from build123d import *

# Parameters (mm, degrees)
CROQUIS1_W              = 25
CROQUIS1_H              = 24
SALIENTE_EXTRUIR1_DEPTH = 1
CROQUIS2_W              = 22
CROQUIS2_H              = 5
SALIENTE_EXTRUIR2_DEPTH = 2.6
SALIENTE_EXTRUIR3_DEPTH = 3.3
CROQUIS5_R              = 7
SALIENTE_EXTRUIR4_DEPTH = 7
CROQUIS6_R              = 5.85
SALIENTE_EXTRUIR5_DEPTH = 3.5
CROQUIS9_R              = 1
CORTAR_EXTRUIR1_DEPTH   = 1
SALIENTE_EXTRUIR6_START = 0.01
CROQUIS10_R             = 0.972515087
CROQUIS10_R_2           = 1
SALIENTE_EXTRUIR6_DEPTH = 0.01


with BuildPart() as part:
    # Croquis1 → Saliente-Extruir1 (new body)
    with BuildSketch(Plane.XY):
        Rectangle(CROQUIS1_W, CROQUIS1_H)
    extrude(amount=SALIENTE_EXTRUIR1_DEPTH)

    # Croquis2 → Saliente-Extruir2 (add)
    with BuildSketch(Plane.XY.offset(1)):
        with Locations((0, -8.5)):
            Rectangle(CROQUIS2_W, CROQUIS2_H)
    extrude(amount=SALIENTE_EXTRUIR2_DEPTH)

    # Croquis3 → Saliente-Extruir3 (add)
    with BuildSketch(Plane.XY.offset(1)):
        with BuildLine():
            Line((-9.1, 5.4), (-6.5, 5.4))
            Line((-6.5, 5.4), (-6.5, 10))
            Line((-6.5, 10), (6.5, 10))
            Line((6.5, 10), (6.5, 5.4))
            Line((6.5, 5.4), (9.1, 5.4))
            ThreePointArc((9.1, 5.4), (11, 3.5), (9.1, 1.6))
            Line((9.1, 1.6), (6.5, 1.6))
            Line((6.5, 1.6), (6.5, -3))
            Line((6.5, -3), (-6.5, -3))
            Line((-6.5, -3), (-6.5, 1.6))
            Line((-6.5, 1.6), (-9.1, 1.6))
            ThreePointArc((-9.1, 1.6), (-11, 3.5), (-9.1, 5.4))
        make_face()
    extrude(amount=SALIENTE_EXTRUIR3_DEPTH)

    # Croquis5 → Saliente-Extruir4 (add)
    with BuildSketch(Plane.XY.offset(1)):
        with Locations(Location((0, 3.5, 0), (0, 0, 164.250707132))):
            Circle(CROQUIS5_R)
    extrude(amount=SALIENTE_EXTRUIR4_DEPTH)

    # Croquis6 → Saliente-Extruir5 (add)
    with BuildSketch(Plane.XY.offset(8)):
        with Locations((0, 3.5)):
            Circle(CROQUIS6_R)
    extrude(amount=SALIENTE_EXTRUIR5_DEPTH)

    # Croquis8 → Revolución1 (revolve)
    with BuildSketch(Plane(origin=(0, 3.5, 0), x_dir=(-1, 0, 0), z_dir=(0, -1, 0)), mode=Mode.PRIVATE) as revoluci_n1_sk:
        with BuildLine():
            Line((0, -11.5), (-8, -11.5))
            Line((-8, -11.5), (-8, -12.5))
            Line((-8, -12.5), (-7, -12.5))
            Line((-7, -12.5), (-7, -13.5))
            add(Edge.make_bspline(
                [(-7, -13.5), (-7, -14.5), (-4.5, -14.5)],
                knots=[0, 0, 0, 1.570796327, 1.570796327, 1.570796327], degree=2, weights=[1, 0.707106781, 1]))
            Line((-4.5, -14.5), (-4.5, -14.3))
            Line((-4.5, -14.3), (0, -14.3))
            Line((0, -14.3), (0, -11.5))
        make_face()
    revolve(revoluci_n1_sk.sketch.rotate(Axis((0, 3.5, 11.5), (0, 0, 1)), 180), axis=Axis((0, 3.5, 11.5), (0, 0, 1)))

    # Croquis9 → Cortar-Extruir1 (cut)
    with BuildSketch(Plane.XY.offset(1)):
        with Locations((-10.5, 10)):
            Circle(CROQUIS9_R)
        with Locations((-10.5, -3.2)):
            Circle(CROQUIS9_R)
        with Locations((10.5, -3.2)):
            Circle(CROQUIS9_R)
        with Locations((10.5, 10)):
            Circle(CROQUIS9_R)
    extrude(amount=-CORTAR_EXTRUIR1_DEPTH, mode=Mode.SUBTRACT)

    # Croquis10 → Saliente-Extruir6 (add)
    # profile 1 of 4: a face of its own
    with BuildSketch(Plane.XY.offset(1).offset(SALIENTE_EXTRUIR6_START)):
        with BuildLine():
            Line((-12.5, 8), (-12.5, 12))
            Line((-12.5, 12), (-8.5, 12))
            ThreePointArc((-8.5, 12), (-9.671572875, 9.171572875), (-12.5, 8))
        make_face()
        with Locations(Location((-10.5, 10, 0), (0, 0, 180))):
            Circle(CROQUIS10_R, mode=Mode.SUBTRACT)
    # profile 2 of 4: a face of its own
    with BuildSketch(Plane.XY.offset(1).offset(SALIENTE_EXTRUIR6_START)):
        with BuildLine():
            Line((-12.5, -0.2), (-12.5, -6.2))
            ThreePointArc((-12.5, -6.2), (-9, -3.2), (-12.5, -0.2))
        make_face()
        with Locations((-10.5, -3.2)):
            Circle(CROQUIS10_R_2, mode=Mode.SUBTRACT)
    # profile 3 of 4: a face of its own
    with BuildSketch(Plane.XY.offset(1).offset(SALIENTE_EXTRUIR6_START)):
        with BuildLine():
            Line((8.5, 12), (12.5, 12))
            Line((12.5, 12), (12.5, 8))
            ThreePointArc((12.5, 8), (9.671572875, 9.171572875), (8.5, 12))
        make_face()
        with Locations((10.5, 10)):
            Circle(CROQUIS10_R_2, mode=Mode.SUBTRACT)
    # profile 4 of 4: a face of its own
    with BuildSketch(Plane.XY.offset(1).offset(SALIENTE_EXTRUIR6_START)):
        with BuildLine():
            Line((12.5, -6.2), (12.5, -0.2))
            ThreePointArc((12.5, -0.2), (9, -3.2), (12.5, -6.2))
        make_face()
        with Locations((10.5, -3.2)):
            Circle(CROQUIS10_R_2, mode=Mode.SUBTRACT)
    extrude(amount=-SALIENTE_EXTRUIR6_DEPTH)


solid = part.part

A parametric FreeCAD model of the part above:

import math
import FreeCAD as App
import Part
import Sketcher
Q = App.Units.Quantity

doc = App.newDocument("Part")
params = doc.addObject("Spreadsheet::Sheet", "Params")
for row, (alias, value) in enumerate([
    ("sketch1_width", "25 mm"),
    ("sketch1_height", "24 mm"),
    ("pad1_length", "1 mm"),
    ("sketch2_width", "22 mm"),
    ("sketch2_height", "5 mm"),
    ("pad2_length", "2.6 mm"),
    ("sketch3_radius", "1.9 mm"),
    ("sketch3_width", "13 mm"),
    ("sketch3_width2", "2.6 mm"),
    ("sketch3_height", "4.6 mm"),
    ("pad3_length", "3.3 mm"),
    ("sketch4_diameter", "14 mm"),
    ("pad4_length", "7 mm"),
    ("sketch5_diameter", "11.7 mm"),
    ("pad5_length", "3.5 mm"),
    ("sketch6_width", "8 mm"),
    ("sketch6_height", "1 mm"),
    ("sketch6_height2", "1 mm"),
    ("sketch6_height3", "0.2 mm"),
    ("revolution_angle", "360 deg"),
    ("sketch7_diameter", "2 mm"),
    ("pocket1_length", "1 mm"),
    ("sketch8_diameter", "2 mm"),
    ("sketch8_radius", "4 mm"),
    ("sketch8_height", "6 mm"),
    ("pad6_length", "0.01 mm"),
], start=1):
    params.set(f"A{row}", alias)
    params.set(f"B{row}", "=" + value)
    params.setAlias(f"B{row}", alias)

body = doc.addObject("PartDesign::Body", "Body")

sketch1 = doc.addObject("Sketcher::SketchObject", "Sketch")
body.addObject(sketch1)
sketch1.AttachmentSupport = (doc.XY_Plane, [""])
sketch1.MapMode = "FlatFace"
sketch1.addGeometry(Part.LineSegment(App.Vector(-12, 12, 0), App.Vector(-12, -12, 0)), False)
sketch1.addGeometry(Part.LineSegment(App.Vector(-12, -12, 0), App.Vector(12, -12, 0)), False)
sketch1.addGeometry(Part.LineSegment(App.Vector(12, -12, 0), App.Vector(12, 12, 0)), False)
sketch1.addGeometry(Part.LineSegment(App.Vector(12, 12, 0), App.Vector(-12, 12, 0)), False)
sketch1.addConstraint(Sketcher.Constraint("Coincident", 0, 2, 1, 1))
sketch1.addConstraint(Sketcher.Constraint("Coincident", 1, 2, 2, 1))
sketch1.addConstraint(Sketcher.Constraint("Coincident", 2, 2, 3, 1))
sketch1.addConstraint(Sketcher.Constraint("Coincident", 3, 2, 0, 1))
sketch1.addConstraint(Sketcher.Constraint("Vertical", 0))
sketch1.addConstraint(Sketcher.Constraint("Horizontal", 1))
sketch1.addConstraint(Sketcher.Constraint("Vertical", 2))
sketch1.addConstraint(Sketcher.Constraint("Horizontal", 3))
sketch1.addConstraint(Sketcher.Constraint("Symmetric", 0, 2, 2, 2, -1, 1))
sketch1.addConstraint(Sketcher.Constraint("DistanceX", 1, 1, 1, 2, Q("25 mm")))
sketch1.addConstraint(Sketcher.Constraint("DistanceY", 0, 2, 0, 1, Q("24 mm")))
sketch1.setExpression("Constraints[9]", "Params.sketch1_width")
sketch1.setExpression("Constraints[10]", "Params.sketch1_height")
pad1 = doc.addObject("PartDesign::Pad", "Pad")
body.addObject(pad1)
pad1.Profile = sketch1
pad1.setExpression("Length", "Params.pad1_length")

sketch2 = doc.addObject("Sketcher::SketchObject", "Sketch001")
body.addObject(sketch2)
sketch2.AttachmentSupport = (doc.XY_Plane, [""])
sketch2.MapMode = "FlatFace"
sketch2.AttachmentOffset = App.Placement(App.Vector(0, 0, 1), App.Rotation())
sketch2.addGeometry(Part.LineSegment(App.Vector(-11, -6, 0), App.Vector(-11, -11, 0)), False)
sketch2.addGeometry(Part.LineSegment(App.Vector(-11, -11, 0), App.Vector(11, -11, 0)), False)
sketch2.addGeometry(Part.LineSegment(App.Vector(11, -11, 0), App.Vector(11, -6, 0)), False)
sketch2.addGeometry(Part.LineSegment(App.Vector(11, -6, 0), App.Vector(-11, -6, 0)), False)
sketch2.addConstraint(Sketcher.Constraint("Coincident", 0, 2, 1, 1))
sketch2.addConstraint(Sketcher.Constraint("Coincident", 1, 2, 2, 1))
sketch2.addConstraint(Sketcher.Constraint("Coincident", 2, 2, 3, 1))
sketch2.addConstraint(Sketcher.Constraint("Coincident", 3, 2, 0, 1))
sketch2.addConstraint(Sketcher.Constraint("Vertical", 0))
sketch2.addConstraint(Sketcher.Constraint("Horizontal", 1))
sketch2.addConstraint(Sketcher.Constraint("Vertical", 2))
sketch2.addConstraint(Sketcher.Constraint("Horizontal", 3))
sketch2.addConstraint(Sketcher.Constraint("DistanceX", 1, 1, 1, 2, Q("22 mm")))
sketch2.addConstraint(Sketcher.Constraint("DistanceY", 0, 2, 0, 1, Q("5 mm")))
sketch2.addConstraint(Sketcher.Constraint("DistanceX", 0, 2, -1, 1, Q("11 mm")))
sketch2.addConstraint(Sketcher.Constraint("DistanceY", 0, 2, -1, 1, Q("11 mm")))
sketch2.setExpression("Constraints[8]", "Params.sketch2_width")
sketch2.setExpression("Constraints[9]", "Params.sketch2_height")
pad2 = doc.addObject("PartDesign::Pad", "Pad001")
body.addObject(pad2)
pad2.Profile = sketch2
pad2.setExpression("Length", "Params.pad2_length")

sketch3 = doc.addObject("Sketcher::SketchObject", "Sketch002")
body.addObject(sketch3)
sketch3.AttachmentSupport = (doc.XY_Plane, [""])
sketch3.MapMode = "FlatFace"
sketch3.AttachmentOffset = App.Placement(App.Vector(0, 0, 1), App.Rotation())
sketch3.addGeometry(Part.LineSegment(App.Vector(-6.5, 5.4, 0), App.Vector(-9.1, 5.4, 0)), False)
sketch3.addGeometry(Part.ArcOfCircle(Part.Circle(App.Vector(-9.1, 3.5, 0), App.Vector(0, 0, 1), 1.9), math.radians(90), math.radians(270)), False)
sketch3.addGeometry(Part.LineSegment(App.Vector(-9.1, 1.6, 0), App.Vector(-6.5, 1.6, 0)), False)
sketch3.addGeometry(Part.LineSegment(App.Vector(-6.5, 1.6, 0), App.Vector(-6.5, -3, 0)), False)
sketch3.addGeometry(Part.LineSegment(App.Vector(-6.5, -3, 0), App.Vector(6.5, -3, 0)), False)
sketch3.addGeometry(Part.LineSegment(App.Vector(6.5, -3, 0), App.Vector(6.5, 1.6, 0)), False)
sketch3.addGeometry(Part.LineSegment(App.Vector(6.5, 1.6, 0), App.Vector(9.1, 1.6, 0)), False)
sketch3.addGeometry(Part.ArcOfCircle(Part.Circle(App.Vector(9.1, 3.5, 0), App.Vector(0, 0, 1), 1.9), math.radians(-90), math.radians(90)), False)
sketch3.addGeometry(Part.LineSegment(App.Vector(9.1, 5.4, 0), App.Vector(6.5, 5.4, 0)), False)
sketch3.addGeometry(Part.LineSegment(App.Vector(6.5, 5.4, 0), App.Vector(6.5, 10, 0)), False)
sketch3.addGeometry(Part.LineSegment(App.Vector(6.5, 10, 0), App.Vector(-6.5, 10, 0)), False)
sketch3.addGeometry(Part.LineSegment(App.Vector(-6.5, 10, 0), App.Vector(-6.5, 5.4, 0)), False)
sketch3.addConstraint(Sketcher.Constraint("Tangent", 0, 2, 1, 1))
sketch3.addConstraint(Sketcher.Constraint("Tangent", 1, 2, 2, 1))
sketch3.addConstraint(Sketcher.Constraint("Coincident", 2, 2, 3, 1))
sketch3.addConstraint(Sketcher.Constraint("Coincident", 3, 2, 4, 1))
sketch3.addConstraint(Sketcher.Constraint("Coincident", 4, 2, 5, 1))
sketch3.addConstraint(Sketcher.Constraint("Coincident", 5, 2, 6, 1))
sketch3.addConstraint(Sketcher.Constraint("Tangent", 6, 2, 7, 1))
sketch3.addConstraint(Sketcher.Constraint("Tangent", 7, 2, 8, 1))
sketch3.addConstraint(Sketcher.Constraint("Coincident", 8, 2, 9, 1))
sketch3.addConstraint(Sketcher.Constraint("Coincident", 9, 2, 10, 1))
sketch3.addConstraint(Sketcher.Constraint("Coincident", 10, 2, 11, 1))
sketch3.addConstraint(Sketcher.Constraint("Coincident", 11, 2, 0, 1))
sketch3.addConstraint(Sketcher.Constraint("Horizontal", 0))
sketch3.addConstraint(Sketcher.Constraint("Horizontal", 2))
sketch3.addConstraint(Sketcher.Constraint("Vertical", 3))
sketch3.addConstraint(Sketcher.Constraint("Horizontal", 4))
sketch3.addConstraint(Sketcher.Constraint("Vertical", 5))
sketch3.addConstraint(Sketcher.Constraint("Horizontal", 6))
sketch3.addConstraint(Sketcher.Constraint("Horizontal", 8))
sketch3.addConstraint(Sketcher.Constraint("Vertical", 9))
sketch3.addConstraint(Sketcher.Constraint("Horizontal", 10))
sketch3.addConstraint(Sketcher.Constraint("Vertical", 11))
sketch3.addConstraint(Sketcher.Constraint("Equal", 1, 7))
sketch3.addConstraint(Sketcher.Constraint("Symmetric", 1, 3, 7, 3, -2))
sketch3.addConstraint(Sketcher.Constraint("Vertical", 5, 2, 8, 2))
sketch3.addConstraint(Sketcher.Constraint("Vertical", 3, 2, 10, 2))
sketch3.addConstraint(Sketcher.Constraint("Equal", 2, 6))
sketch3.addConstraint(Sketcher.Constraint("Equal", 5, 9))
sketch3.addConstraint(Sketcher.Constraint("Radius", 1, Q("1.9 mm")))
sketch3.addConstraint(Sketcher.Constraint("DistanceX", 4, 1, 4, 2, Q("13 mm")))
sketch3.addConstraint(Sketcher.Constraint("DistanceX", 0, 2, 0, 1, Q("2.6 mm")))
sketch3.addConstraint(Sketcher.Constraint("DistanceY", 3, 2, 3, 1, Q("4.6 mm")))
sketch3.addConstraint(Sketcher.Constraint("DistanceY", 3, 2, -1, 1, Q("3 mm")))
sketch3.setExpression("Constraints[28]", "Params.sketch3_radius")
sketch3.setExpression("Constraints[29]", "Params.sketch3_width")
sketch3.setExpression("Constraints[30]", "Params.sketch3_width2")
sketch3.setExpression("Constraints[31]", "Params.sketch3_height")
pad3 = doc.addObject("PartDesign::Pad", "Pad002")
body.addObject(pad3)
pad3.Profile = sketch3
pad3.setExpression("Length", "Params.pad3_length")

sketch4 = doc.addObject("Sketcher::SketchObject", "Sketch003")
body.addObject(sketch4)
sketch4.AttachmentSupport = (doc.XY_Plane, [""])
sketch4.MapMode = "FlatFace"
sketch4.AttachmentOffset = App.Placement(App.Vector(0, 0, 1), App.Rotation())
sketch4.addGeometry(Part.Circle(App.Vector(0, 4, 0), App.Vector(0, 0, 1), 7), False)
sketch4.addConstraint(Sketcher.Constraint("PointOnObject", 0, 3, -2))
sketch4.addConstraint(Sketcher.Constraint("Diameter", 0, Q("14 mm")))
sketch4.addConstraint(Sketcher.Constraint("DistanceY", -1, 1, 0, 3, Q("3.5 mm")))
sketch4.setExpression("Constraints[1]", "Params.sketch4_diameter")
pad4 = doc.addObject("PartDesign::Pad", "Pad003")
body.addObject(pad4)
pad4.Profile = sketch4
pad4.setExpression("Length", "Params.pad4_length")

sketch5 = doc.addObject("Sketcher::SketchObject", "Sketch004")
body.addObject(sketch5)
sketch5.AttachmentSupport = (doc.XY_Plane, [""])
sketch5.MapMode = "FlatFace"
sketch5.AttachmentOffset = App.Placement(App.Vector(0, 0, 8), App.Rotation())
sketch5.addGeometry(Part.Circle(App.Vector(0, 4, 0), App.Vector(0, 0, 1), 6), False)
sketch5.addConstraint(Sketcher.Constraint("PointOnObject", 0, 3, -2))
sketch5.addConstraint(Sketcher.Constraint("Diameter", 0, Q("11.7 mm")))
sketch5.addConstraint(Sketcher.Constraint("DistanceY", -1, 1, 0, 3, Q("3.5 mm")))
sketch5.setExpression("Constraints[1]", "Params.sketch5_diameter")
pad5 = doc.addObject("PartDesign::Pad", "Pad004")
body.addObject(pad5)
pad5.Profile = sketch5
pad5.setExpression("Length", "Params.pad5_length")

sketch6 = doc.addObject("Sketcher::SketchObject", "Sketch005")
body.addObject(sketch6)
sketch6.AttachmentSupport = (doc.XZ_Plane, [""])
sketch6.MapMode = "FlatFace"
sketch6.AttachmentOffset = App.Placement(App.Vector(0, 0, -3.5), App.Rotation())
sketch6.addGeometry(Part.LineSegment(App.Vector(0, 11.5, 0), App.Vector(8, 11.5, 0)), False)
sketch6.addGeometry(Part.LineSegment(App.Vector(8, 11.5, 0), App.Vector(8, 12.5, 0)), False)
sketch6.addGeometry(Part.LineSegment(App.Vector(8, 12.5, 0), App.Vector(7, 12.5, 0)), False)
sketch6.addGeometry(Part.LineSegment(App.Vector(7, 12.5, 0), App.Vector(7, 13.5, 0)), False)
sketch6.addGeometry(Part.BSplineCurve([App.Vector(7, 13.5, 0), App.Vector(7, 14.5, 0), App.Vector(4.5, 14.5, 0)], [3, 3], [0, 1.570796327], False, 2, [1, 0.707106781, 1], False), False)
sketch6.addGeometry(Part.LineSegment(App.Vector(4.5, 14.5, 0), App.Vector(4.5, 14.3, 0)), False)
sketch6.addGeometry(Part.LineSegment(App.Vector(4.5, 14.3, 0), App.Vector(0, 14.3, 0)), False)
sketch6.addGeometry(Part.LineSegment(App.Vector(0, 14.3, 0), App.Vector(0, 11.5, 0)), False)
sketch6.addConstraint(Sketcher.Constraint("Block", 4))
sketch6.addConstraint(Sketcher.Constraint("Coincident", 0, 2, 1, 1))
sketch6.addConstraint(Sketcher.Constraint("Coincident", 1, 2, 2, 1))
sketch6.addConstraint(Sketcher.Constraint("Coincident", 2, 2, 3, 1))
sketch6.addConstraint(Sketcher.Constraint("Coincident", 3, 2, 4, 1))
sketch6.addConstraint(Sketcher.Constraint("Coincident", 4, 2, 5, 1))
sketch6.addConstraint(Sketcher.Constraint("Coincident", 5, 2, 6, 1))
sketch6.addConstraint(Sketcher.Constraint("Coincident", 6, 2, 7, 1))
sketch6.addConstraint(Sketcher.Constraint("Coincident", 7, 2, 0, 1))
sketch6.addConstraint(Sketcher.Constraint("Horizontal", 0))
sketch6.addConstraint(Sketcher.Constraint("Vertical", 1))
sketch6.addConstraint(Sketcher.Constraint("Horizontal", 2))
sketch6.addConstraint(Sketcher.Constraint("Vertical", 3))
sketch6.addConstraint(Sketcher.Constraint("Vertical", 5))
sketch6.addConstraint(Sketcher.Constraint("Horizontal", 6))
sketch6.addConstraint(Sketcher.Constraint("Vertical", 7))
sketch6.addConstraint(Sketcher.Constraint("PointOnObject", 6, 2, -2))
sketch6.addConstraint(Sketcher.Constraint("DistanceX", 0, 1, 0, 2, Q("8 mm")))
sketch6.addConstraint(Sketcher.Constraint("DistanceY", 1, 1, 1, 2, Q("1 mm")))
sketch6.addConstraint(Sketcher.Constraint("DistanceY", 3, 1, 3, 2, Q("1 mm")))
sketch6.addConstraint(Sketcher.Constraint("DistanceY", 5, 2, 5, 1, Q("0.2 mm")))
sketch6.setExpression("Constraints[17]", "Params.sketch6_width")
sketch6.setExpression("Constraints[18]", "Params.sketch6_height")
sketch6.setExpression("Constraints[19]", "Params.sketch6_height2")
sketch6.setExpression("Constraints[20]", "Params.sketch6_height3")
revolution = doc.addObject("PartDesign::Revolution", "Revolution")
body.addObject(revolution)
revolution.Profile = sketch6
revolution.ReferenceAxis = (sketch6, ["V_Axis"])
revolution.setExpression("Angle", "Params.revolution_angle")

sketch7 = doc.addObject("Sketcher::SketchObject", "Sketch006")
body.addObject(sketch7)
sketch7.AttachmentSupport = (doc.XY_Plane, [""])
sketch7.MapMode = "FlatFace"
sketch7.AttachmentOffset = App.Placement(App.Vector(0, 0, 1), App.Rotation())
sketch7.addGeometry(Part.Circle(App.Vector(-10.5, 10, 0), App.Vector(0, 0, 1), 1), False)
sketch7.addGeometry(Part.Circle(App.Vector(-10.5, -3.2, 0), App.Vector(0, 0, 1), 1), False)
sketch7.addGeometry(Part.Circle(App.Vector(10.5, -3.2, 0), App.Vector(0, 0, 1), 1), False)
sketch7.addGeometry(Part.Circle(App.Vector(10.5, 10, 0), App.Vector(0, 0, 1), 1), False)
sketch7.addConstraint(Sketcher.Constraint("Equal", 0, 1))
sketch7.addConstraint(Sketcher.Constraint("Equal", 1, 2))
sketch7.addConstraint(Sketcher.Constraint("Equal", 2, 3))
sketch7.addConstraint(Sketcher.Constraint("Symmetric", 1, 3, 2, 3, -2))
sketch7.addConstraint(Sketcher.Constraint("Symmetric", 0, 3, 3, 3, -2))
sketch7.addConstraint(Sketcher.Constraint("Vertical", 0, 3, 1, 3))
sketch7.addConstraint(Sketcher.Constraint("Diameter", 0, Q("2 mm")))
sketch7.addConstraint(Sketcher.Constraint("DistanceY", -1, 1, 0, 3, Q("10 mm")))
sketch7.addConstraint(Sketcher.Constraint("DistanceX", 1, 3, 2, 3, Q("21 mm")))
sketch7.addConstraint(Sketcher.Constraint("DistanceY", 1, 3, -1, 1, Q("3.2 mm")))
sketch7.setExpression("Constraints[6]", "Params.sketch7_diameter")
pocket1 = doc.addObject("PartDesign::Pocket", "Pocket")
body.addObject(pocket1)
pocket1.Profile = sketch7
pocket1.setExpression("Length", "Params.pocket1_length")

sketch8 = doc.addObject("Sketcher::SketchObject", "Sketch007")
body.addObject(sketch8)
sketch8.AttachmentSupport = (doc.XY_Plane, [""])
sketch8.MapMode = "FlatFace"
sketch8.AttachmentOffset = App.Placement(App.Vector(0, 0, 1.01), App.Rotation())
sketch8.addGeometry(Part.LineSegment(App.Vector(-12.5, 12, 0), App.Vector(-12.5, 8, 0)), False)
sketch8.addGeometry(Part.ArcOfCircle(Part.Circle(App.Vector(-12.5, 12, 0), App.Vector(0, 0, 1), 4), math.radians(-90), math.radians(0)), False)
sketch8.addGeometry(Part.LineSegment(App.Vector(-8.5, 12, 0), App.Vector(-12.5, 12, 0)), False)
sketch8.addGeometry(Part.Circle(App.Vector(-10.5, 10, 0), App.Vector(0, 0, 1), 1), False)
sketch8.addGeometry(Part.LineSegment(App.Vector(-12.5, -0.2, 0), App.Vector(-12.5, -6.2, 0)), False)
sketch8.addGeometry(Part.ArcOfCircle(Part.Circle(App.Vector(-12, -3.2, 0), App.Vector(0, 0, 1), 3), math.radians(-99), math.radians(99)), False)
sketch8.addGeometry(Part.Circle(App.Vector(-10.5, -3.2, 0), App.Vector(0, 0, 1), 1), False)
sketch8.addGeometry(Part.LineSegment(App.Vector(12.5, 12, 0), App.Vector(8.5, 12, 0)), False)
sketch8.addGeometry(Part.ArcOfCircle(Part.Circle(App.Vector(12.5, 12, 0), App.Vector(0, 0, 1), 4), math.radians(180), math.radians(270)), False)
sketch8.addGeometry(Part.LineSegment(App.Vector(12.5, 8, 0), App.Vector(12.5, 12, 0)), False)
sketch8.addGeometry(Part.Circle(App.Vector(10.5, 10, 0), App.Vector(0, 0, 1), 1), False)
sketch8.addGeometry(Part.LineSegment(App.Vector(12.5, -6.2, 0), App.Vector(12.5, -0.2, 0)), False)
sketch8.addGeometry(Part.ArcOfCircle(Part.Circle(App.Vector(12, -3.2, 0), App.Vector(0, 0, 1), 3), math.radians(81), math.radians(279)), False)
sketch8.addGeometry(Part.Circle(App.Vector(10.5, -3.2, 0), App.Vector(0, 0, 1), 1), False)
sketch8.addConstraint(Sketcher.Constraint("Coincident", 0, 2, 1, 1))
sketch8.addConstraint(Sketcher.Constraint("Coincident", 1, 2, 2, 1))
sketch8.addConstraint(Sketcher.Constraint("Coincident", 2, 2, 0, 1))
sketch8.addConstraint(Sketcher.Constraint("Coincident", 4, 1, 5, 2))
sketch8.addConstraint(Sketcher.Constraint("Coincident", 5, 1, 4, 2))
sketch8.addConstraint(Sketcher.Constraint("Coincident", 7, 2, 8, 1))
sketch8.addConstraint(Sketcher.Constraint("Coincident", 8, 2, 9, 1))
sketch8.addConstraint(Sketcher.Constraint("Coincident", 9, 2, 7, 1))
sketch8.addConstraint(Sketcher.Constraint("Coincident", 11, 1, 12, 2))
sketch8.addConstraint(Sketcher.Constraint("Coincident", 12, 1, 11, 2))
sketch8.addConstraint(Sketcher.Constraint("Vertical", 0))
sketch8.addConstraint(Sketcher.Constraint("Horizontal", 2))
sketch8.addConstraint(Sketcher.Constraint("Vertical", 4))
sketch8.addConstraint(Sketcher.Constraint("Horizontal", 7))
sketch8.addConstraint(Sketcher.Constraint("Vertical", 9))
sketch8.addConstraint(Sketcher.Constraint("Vertical", 11))
sketch8.addConstraint(Sketcher.Constraint("Coincident", 2, 2, 1, 3))
sketch8.addConstraint(Sketcher.Constraint("Coincident", 9, 2, 8, 3))
sketch8.addConstraint(Sketcher.Constraint("Equal", 1, 8))
sketch8.addConstraint(Sketcher.Constraint("Equal", 6, 10))
sketch8.addConstraint(Sketcher.Constraint("Equal", 5, 12))
sketch8.addConstraint(Sketcher.Constraint("Equal", 10, 13))
sketch8.addConstraint(Sketcher.Constraint("Symmetric", 1, 3, 8, 3, -2))
sketch8.addConstraint(Sketcher.Constraint("Symmetric", 3, 3, 10, 3, -2))
sketch8.addConstraint(Sketcher.Constraint("Symmetric", 5, 3, 12, 3, -2))
sketch8.addConstraint(Sketcher.Constraint("Symmetric", 6, 3, 13, 3, -2))
sketch8.addConstraint(Sketcher.Constraint("Horizontal", 5, 3, 6, 3))
sketch8.addConstraint(Sketcher.Constraint("Horizontal", 5, 1, 11, 1))
sketch8.addConstraint(Sketcher.Constraint("Vertical", 3, 3, 6, 3))
sketch8.addConstraint(Sketcher.Constraint("Vertical", 2, 2, 4, 1))
sketch8.addConstraint(Sketcher.Constraint("Diameter", 6, Q("2 mm")))
sketch8.addConstraint(Sketcher.Constraint("Radius", 1, Q("4 mm")))
sketch8.addConstraint(Sketcher.Constraint("DistanceY", 4, 2, 4, 1, Q("6 mm")))
sketch8.addConstraint(Sketcher.Constraint("DistanceY", -1, 1, 1, 3, Q("12 mm")))
sketch8.addConstraint(Sketcher.Constraint("DistanceY", -1, 1, 3, 3, Q("10 mm")))
sketch8.addConstraint(Sketcher.Constraint("DistanceX", 1, 3, 3, 3, Q("2 mm")))
sketch8.addConstraint(Sketcher.Constraint("DistanceX", 3, 3, 8, 3, Q("23 mm")))
sketch8.addConstraint(Sketcher.Constraint("DistanceY", 5, 3, -1, 1, Q("3.2 mm")))
sketch8.addConstraint(Sketcher.Constraint("Diameter", 3, Q("1.94503 mm")))
sketch8.addConstraint(Sketcher.Constraint("Radius", 5, Q("3.035714 mm")))
sketch8.setExpression("Constraints[30]", "Params.sketch8_diameter")
sketch8.setExpression("Constraints[31]", "Params.sketch8_radius")
sketch8.setExpression("Constraints[32]", "Params.sketch8_height")
pad6 = doc.addObject("PartDesign::Pad", "Pad005")
body.addObject(pad6)
pad6.Profile = sketch8
pad6.setExpression("Length", "Params.pad6_length")
pad6.Reversed = True

doc.recompute()
